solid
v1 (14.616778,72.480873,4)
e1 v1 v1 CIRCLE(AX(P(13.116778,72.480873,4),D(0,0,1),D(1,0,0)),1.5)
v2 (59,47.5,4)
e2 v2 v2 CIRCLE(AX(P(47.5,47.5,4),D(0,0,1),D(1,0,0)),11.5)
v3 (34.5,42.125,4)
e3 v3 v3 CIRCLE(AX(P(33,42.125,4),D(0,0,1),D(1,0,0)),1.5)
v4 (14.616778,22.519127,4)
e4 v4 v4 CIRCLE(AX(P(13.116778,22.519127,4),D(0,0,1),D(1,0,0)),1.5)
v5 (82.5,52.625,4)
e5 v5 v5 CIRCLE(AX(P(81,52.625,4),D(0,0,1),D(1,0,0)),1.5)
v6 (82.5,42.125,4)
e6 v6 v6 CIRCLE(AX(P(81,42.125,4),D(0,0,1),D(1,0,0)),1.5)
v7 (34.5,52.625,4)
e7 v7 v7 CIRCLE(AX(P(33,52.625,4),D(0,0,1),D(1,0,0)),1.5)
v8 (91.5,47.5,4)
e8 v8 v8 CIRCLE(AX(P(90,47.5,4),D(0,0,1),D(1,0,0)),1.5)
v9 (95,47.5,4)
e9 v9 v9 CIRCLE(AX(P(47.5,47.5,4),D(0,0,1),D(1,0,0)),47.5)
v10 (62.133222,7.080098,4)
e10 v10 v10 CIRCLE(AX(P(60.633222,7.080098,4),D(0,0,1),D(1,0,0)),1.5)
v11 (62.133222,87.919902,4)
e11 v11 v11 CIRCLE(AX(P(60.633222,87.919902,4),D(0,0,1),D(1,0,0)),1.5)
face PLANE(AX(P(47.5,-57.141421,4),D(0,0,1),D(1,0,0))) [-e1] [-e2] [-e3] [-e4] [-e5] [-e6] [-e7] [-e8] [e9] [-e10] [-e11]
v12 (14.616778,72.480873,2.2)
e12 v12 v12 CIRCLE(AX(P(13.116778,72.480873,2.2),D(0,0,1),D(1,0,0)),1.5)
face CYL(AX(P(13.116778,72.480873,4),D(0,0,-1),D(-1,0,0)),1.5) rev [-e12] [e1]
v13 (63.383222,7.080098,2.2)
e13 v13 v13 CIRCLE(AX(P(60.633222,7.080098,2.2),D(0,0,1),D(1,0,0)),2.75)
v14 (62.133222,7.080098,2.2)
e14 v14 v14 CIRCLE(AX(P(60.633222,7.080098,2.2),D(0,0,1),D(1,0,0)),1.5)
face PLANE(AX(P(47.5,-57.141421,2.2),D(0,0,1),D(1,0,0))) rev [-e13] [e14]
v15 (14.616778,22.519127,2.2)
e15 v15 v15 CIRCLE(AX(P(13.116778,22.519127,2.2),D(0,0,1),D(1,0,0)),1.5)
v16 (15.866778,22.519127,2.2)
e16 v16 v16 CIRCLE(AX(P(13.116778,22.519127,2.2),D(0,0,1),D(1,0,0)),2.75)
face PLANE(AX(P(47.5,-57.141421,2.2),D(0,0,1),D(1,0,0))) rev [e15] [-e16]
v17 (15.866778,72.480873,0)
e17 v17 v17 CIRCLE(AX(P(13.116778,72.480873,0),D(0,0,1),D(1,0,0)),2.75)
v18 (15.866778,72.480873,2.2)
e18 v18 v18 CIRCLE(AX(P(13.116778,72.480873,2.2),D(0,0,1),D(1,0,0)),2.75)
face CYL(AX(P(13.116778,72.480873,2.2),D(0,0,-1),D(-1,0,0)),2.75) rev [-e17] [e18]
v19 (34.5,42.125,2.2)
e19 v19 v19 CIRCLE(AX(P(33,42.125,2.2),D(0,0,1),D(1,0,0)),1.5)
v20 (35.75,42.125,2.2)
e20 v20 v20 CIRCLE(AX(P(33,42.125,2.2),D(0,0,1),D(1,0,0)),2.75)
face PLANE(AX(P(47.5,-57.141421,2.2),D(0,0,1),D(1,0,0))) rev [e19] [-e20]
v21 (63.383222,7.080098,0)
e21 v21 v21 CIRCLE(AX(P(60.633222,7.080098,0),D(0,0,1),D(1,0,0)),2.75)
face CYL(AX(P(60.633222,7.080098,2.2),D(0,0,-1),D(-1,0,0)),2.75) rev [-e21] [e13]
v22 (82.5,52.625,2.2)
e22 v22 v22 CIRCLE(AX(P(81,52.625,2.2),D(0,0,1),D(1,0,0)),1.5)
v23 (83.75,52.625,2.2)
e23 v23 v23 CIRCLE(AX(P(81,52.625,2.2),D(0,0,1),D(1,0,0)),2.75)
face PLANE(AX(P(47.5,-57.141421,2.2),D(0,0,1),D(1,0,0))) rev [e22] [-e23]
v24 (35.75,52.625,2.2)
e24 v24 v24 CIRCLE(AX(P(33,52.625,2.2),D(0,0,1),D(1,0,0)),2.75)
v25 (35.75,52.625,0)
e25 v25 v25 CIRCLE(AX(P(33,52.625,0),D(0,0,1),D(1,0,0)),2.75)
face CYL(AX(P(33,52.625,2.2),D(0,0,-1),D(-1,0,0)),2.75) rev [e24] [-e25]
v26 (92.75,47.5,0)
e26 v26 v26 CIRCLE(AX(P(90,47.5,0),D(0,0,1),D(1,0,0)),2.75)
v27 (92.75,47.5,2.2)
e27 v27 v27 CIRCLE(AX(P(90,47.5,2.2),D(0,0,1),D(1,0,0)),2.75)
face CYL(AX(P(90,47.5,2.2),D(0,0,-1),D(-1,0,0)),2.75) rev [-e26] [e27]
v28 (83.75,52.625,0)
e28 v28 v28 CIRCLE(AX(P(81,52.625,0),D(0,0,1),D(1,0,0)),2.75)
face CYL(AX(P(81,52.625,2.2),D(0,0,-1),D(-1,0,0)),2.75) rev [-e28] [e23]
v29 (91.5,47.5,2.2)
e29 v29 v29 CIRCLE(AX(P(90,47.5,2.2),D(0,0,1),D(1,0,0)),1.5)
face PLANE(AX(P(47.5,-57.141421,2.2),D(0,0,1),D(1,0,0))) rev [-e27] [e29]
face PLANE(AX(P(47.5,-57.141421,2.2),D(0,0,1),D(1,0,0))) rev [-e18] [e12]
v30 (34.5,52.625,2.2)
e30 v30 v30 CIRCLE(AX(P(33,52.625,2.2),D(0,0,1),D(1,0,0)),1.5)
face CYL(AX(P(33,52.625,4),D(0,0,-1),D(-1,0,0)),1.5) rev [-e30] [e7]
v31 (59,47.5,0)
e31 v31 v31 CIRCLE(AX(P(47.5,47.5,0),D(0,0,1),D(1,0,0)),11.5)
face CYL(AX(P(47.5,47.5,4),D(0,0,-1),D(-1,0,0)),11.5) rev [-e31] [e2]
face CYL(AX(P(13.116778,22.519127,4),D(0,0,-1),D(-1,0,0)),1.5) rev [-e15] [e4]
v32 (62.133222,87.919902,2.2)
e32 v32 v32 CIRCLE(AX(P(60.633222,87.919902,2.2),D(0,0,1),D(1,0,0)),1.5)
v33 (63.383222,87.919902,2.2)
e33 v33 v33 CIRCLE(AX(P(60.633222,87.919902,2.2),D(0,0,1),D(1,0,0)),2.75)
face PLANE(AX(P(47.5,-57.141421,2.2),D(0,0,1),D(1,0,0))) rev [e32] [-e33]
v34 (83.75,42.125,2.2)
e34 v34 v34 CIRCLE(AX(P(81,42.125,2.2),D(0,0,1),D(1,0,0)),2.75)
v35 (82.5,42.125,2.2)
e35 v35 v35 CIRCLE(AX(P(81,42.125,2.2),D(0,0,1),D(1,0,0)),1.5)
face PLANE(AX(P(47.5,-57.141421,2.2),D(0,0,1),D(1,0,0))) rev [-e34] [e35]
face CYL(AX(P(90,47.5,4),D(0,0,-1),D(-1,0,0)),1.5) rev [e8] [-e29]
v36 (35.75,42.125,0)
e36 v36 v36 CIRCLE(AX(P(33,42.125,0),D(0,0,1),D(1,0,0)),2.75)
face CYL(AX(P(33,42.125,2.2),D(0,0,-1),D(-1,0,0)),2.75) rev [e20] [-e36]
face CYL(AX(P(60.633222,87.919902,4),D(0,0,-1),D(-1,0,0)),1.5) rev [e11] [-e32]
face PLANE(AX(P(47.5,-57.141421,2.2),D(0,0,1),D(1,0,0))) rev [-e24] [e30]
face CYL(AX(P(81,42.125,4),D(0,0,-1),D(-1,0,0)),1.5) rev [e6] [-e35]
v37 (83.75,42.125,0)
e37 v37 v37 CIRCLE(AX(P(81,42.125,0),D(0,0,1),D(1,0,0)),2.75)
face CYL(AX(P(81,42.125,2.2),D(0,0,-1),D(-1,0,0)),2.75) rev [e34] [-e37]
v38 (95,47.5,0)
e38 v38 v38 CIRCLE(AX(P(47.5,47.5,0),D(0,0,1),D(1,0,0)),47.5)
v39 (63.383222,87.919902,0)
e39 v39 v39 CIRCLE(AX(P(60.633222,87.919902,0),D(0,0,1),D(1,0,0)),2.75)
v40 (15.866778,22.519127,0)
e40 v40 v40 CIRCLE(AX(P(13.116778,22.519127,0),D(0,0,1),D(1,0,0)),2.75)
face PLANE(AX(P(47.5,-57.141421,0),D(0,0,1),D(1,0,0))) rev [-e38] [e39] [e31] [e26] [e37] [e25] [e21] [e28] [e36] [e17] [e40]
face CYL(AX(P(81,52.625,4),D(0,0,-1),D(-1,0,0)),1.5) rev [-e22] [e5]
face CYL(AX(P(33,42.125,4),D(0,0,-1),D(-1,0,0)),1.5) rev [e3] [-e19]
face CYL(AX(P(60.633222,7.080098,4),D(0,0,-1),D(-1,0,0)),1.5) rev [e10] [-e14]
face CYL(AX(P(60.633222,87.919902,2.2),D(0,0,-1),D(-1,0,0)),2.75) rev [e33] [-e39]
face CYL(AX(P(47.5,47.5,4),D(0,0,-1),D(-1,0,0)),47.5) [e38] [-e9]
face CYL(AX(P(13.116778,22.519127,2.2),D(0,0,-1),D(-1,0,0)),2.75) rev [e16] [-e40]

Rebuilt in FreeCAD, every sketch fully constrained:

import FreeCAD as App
import Part
import Sketcher

doc = App.newDocument("Part")
params = doc.addObject("Spreadsheet::Sheet", "Params")
for row, (alias, value) in enumerate([
    ("sketch1_diameter", "95 mm"),
    ("sketch1_diameter2", "3 mm"),
    ("sketch1_diameter3", "23 mm"),
    ("pad1_length", "4 mm"),
    ("sketch2_diameter", "3 mm"),
    ("sketch2_diameter2", "5.5 mm"),
    ("pocket1_length", "2.2 mm"),
], start=1):
    params.set(f"A{row}", alias)
    params.set(f"B{row}", "=" + value)
    params.setAlias(f"B{row}", alias)

body = doc.addObject("PartDesign::Body", "Body")

# Sketch on XY plane
sketch1 = body.newObject("Sketcher::SketchObject", "Sketch")
sketch1.AttachmentSupport = (doc.getObject("XY_Plane"), [""])
sketch1.MapMode = "FlatFace"
sketch1.addGeometry([
    Part.Circle(App.Vector(47.5, 47.5, 0), App.Vector(0, 0, 1), 47.5),  # 0
    Part.Circle(App.Vector(13.1, 22.5, 0), App.Vector(0, 0, 1), 1.5),  # 1
    Part.Circle(App.Vector(33, 42.1, 0), App.Vector(0, 0, 1), 1.5),  # 2
    Part.Circle(App.Vector(60.6, 7.1, 0), App.Vector(0, 0, 1), 1.5),  # 3
    Part.Circle(App.Vector(81, 42.1, 0), App.Vector(0, 0, 1), 1.5),  # 4
    Part.Circle(App.Vector(33, 52.6, 0), App.Vector(0, 0, 1), 1.5),  # 5
    Part.Circle(App.Vector(47.5, 47.5, 0), App.Vector(0, 0, 1), 11.5),  # 6
    Part.Circle(App.Vector(13.1, 72.5, 0), App.Vector(0, 0, 1), 1.5),  # 7
    Part.Circle(App.Vector(81, 52.6, 0), App.Vector(0, 0, 1), 1.5),  # 8
    Part.Circle(App.Vector(90, 47.5, 0), App.Vector(0, 0, 1), 1.5),  # 9
    Part.Circle(App.Vector(60.6, 87.9, 0), App.Vector(0, 0, 1), 1.5),  # 10
], False)
sketch1.addConstraint([
    Sketcher.Constraint("Coincident", 6, 3, 0, 3),
    Sketcher.Constraint("Equal", 1, 2),
    Sketcher.Constraint("Equal", 2, 3),
    Sketcher.Constraint("Equal", 3, 4),
    Sketcher.Constraint("Equal", 4, 5),
    Sketcher.Constraint("Equal", 5, 7),
    Sketcher.Constraint("Equal", 7, 8),
    Sketcher.Constraint("Equal", 8, 9),
    Sketcher.Constraint("Equal", 9, 10),
    Sketcher.Constraint("Horizontal", 2, 3, 4, 3),
    Sketcher.Constraint("Horizontal", 5, 3, 8, 3),
    Sketcher.Constraint("Horizontal", 6, 3, 9, 3),
    Sketcher.Constraint("Vertical", 2, 3, 5, 3),
    Sketcher.Constraint("Vertical", 1, 3, 7, 3),
    Sketcher.Constraint("Vertical", 4, 3, 8, 3),
    Sketcher.Constraint("Vertical", 3, 3, 10, 3),
    Sketcher.Constraint("Diameter", 0, 95.0),
    Sketcher.Constraint("Diameter", 1, 3.0),
    Sketcher.Constraint("Diameter", 6, 23.0),
    Sketcher.Constraint("DistanceX", -1, 1, 2, 3, 33.0),
    Sketcher.Constraint("DistanceX", -1, 1, 4, 3, 81.0),
    Sketcher.Constraint("DistanceX", -1, 1, 9, 3, 90.0),
    Sketcher.Constraint("DistanceX", -1, 1, 0, 3, 47.5),
    Sketcher.Constraint("DistanceY", -1, 1, 0, 3, 47.5),
    Sketcher.Constraint("DistanceY", 2, 3, 5, 3, 10.5),
    Sketcher.Constraint("DistanceY", -1, 1, 2, 3, 42.125),
    Sketcher.Constraint("DistanceY", -1, 1, 3, 3, 7.080098),
    Sketcher.Constraint("DistanceY", -1, 1, 10, 3, 87.919902),
    Sketcher.Constraint("DistanceY", 3, 3, 1, 3, 15.439029),
    Sketcher.Constraint("DistanceX", -1, 1, 1, 3, 13.116778),
    Sketcher.Constraint("DistanceX", -1, 1, 3, 3, 60.633222),
    Sketcher.Constraint("DistanceY", -1, 1, 7, 3, 72.480873),
])
sketch1.setExpression("Constraints[16]", "Params.sketch1_diameter")
sketch1.setExpression("Constraints[17]", "Params.sketch1_diameter2")
sketch1.setExpression("Constraints[18]", "Params.sketch1_diameter3")
pad1 = body.newObject("PartDesign::Pad", "Pad")
pad1.Profile = sketch1
pad1.setExpression("Length", "Params.pad1_length")

# Sketch on XY plane
sketch2 = body.newObject("Sketcher::SketchObject", "Sketch001")
sketch2.AttachmentSupport = (doc.getObject("XY_Plane"), [""])
sketch2.MapMode = "FlatFace"
sketch2.addGeometry([
    Part.Circle(App.Vector(33, 52.6, 0), App.Vector(0, 0, 1), 2.8),  # 0
    Part.Circle(App.Vector(33, 52.6, 0), App.Vector(0, 0, 1), 1.5),  # 1
    Part.Circle(App.Vector(33, 42.1, 0), App.Vector(0, 0, 1), 2.8),  # 2
    Part.Circle(App.Vector(33, 42.1, 0), App.Vector(0, 0, 1), 1.5),  # 3
    Part.Circle(App.Vector(13.1, 22.5, 0), App.Vector(0, 0, 1), 2.8),  # 4
    Part.Circle(App.Vector(13.1, 22.5, 0), App.Vector(0, 0, 1), 1.5),  # 5
    Part.Circle(App.Vector(13.1, 72.5, 0), App.Vector(0, 0, 1), 2.8),  # 6
    Part.Circle(App.Vector(13.1, 72.5, 0), App.Vector(0, 0, 1), 1.5),  # 7
    Part.Circle(App.Vector(60.6, 87.9, 0), App.Vector(0, 0, 1), 2.8),  # 8
    Part.Circle(App.Vector(60.6, 87.9, 0), App.Vector(0, 0, 1), 1.5),  # 9
    Part.Circle(App.Vector(81, 52.6, 0), App.Vector(0, 0, 1), 2.8),  # 10
    Part.Circle(App.Vector(81, 52.6, 0), App.Vector(0, 0, 1), 1.5),  # 11
    Part.Circle(App.Vector(90, 47.5, 0), App.Vector(0, 0, 1), 2.8),  # 12
    Part.Circle(App.Vector(90, 47.5, 0), App.Vector(0, 0, 1), 1.5),  # 13
    Part.Circle(App.Vector(81, 42.1, 0), App.Vector(0, 0, 1), 2.8),  # 14
    Part.Circle(App.Vector(81, 42.1, 0), App.Vector(0, 0, 1), 1.5),  # 15
    Part.Circle(App.Vector(60.6, 7.1, 0), App.Vector(0, 0, 1), 2.8),  # 16
    Part.Circle(App.Vector(60.6, 7.1, 0), App.Vector(0, 0, 1), 1.5),  # 17
], False)
sketch2.addConstraint([
    Sketcher.Constraint("Coincident", 1, 3, 0, 3),
    Sketcher.Constraint("Coincident", 3, 3, 2, 3),
    Sketcher.Constraint("Coincident", 5, 3, 4, 3),
    Sketcher.Constraint("Coincident", 7, 3, 6, 3),
    Sketcher.Constraint("Coincident", 9, 3, 8, 3),
    Sketcher.Constraint("Coincident", 11, 3, 10, 3),
    Sketcher.Constraint("Coincident", 13, 3, 12, 3),
    Sketcher.Constraint("Coincident", 15, 3, 14, 3),
    Sketcher.Constraint("Coincident", 17, 3, 16, 3),
    Sketcher.Constraint("Equal", 0, 2),
    Sketcher.Constraint("Equal", 1, 3),
    Sketcher.Constraint("Equal", 2, 4),
    Sketcher.Constraint("Equal", 3, 5),
    Sketcher.Constraint("Equal", 4, 6),
    Sketcher.Constraint("Equal", 5, 7),
    Sketcher.Constraint("Equal", 6, 8),
    Sketcher.Constraint("Equal", 7, 9),
    Sketcher.Constraint("Equal", 8, 10),
    Sketcher.Constraint("Equal", 9, 11),
    Sketcher.Constraint("Equal", 10, 12),
    Sketcher.Constraint("Equal", 11, 13),
    Sketcher.Constraint("Equal", 12, 14),
    Sketcher.Constraint("Equal", 13, 15),
    Sketcher.Constraint("Equal", 14, 16),
    Sketcher.Constraint("Equal", 15, 17),
    Sketcher.Constraint("Horizontal", 1, 3, 10, 3),
    Sketcher.Constraint("Horizontal", 3, 3, 14, 3),
    Sketcher.Constraint("Vertical", 1, 3, 2, 3),
    Sketcher.Constraint("Vertical", 5, 3, 6, 3),
    Sketcher.Constraint("Vertical", 11, 3, 14, 3),
    Sketcher.Constraint("Vertical", 9, 3, 16, 3),
    Sketcher.Constraint("Diameter", 1, 3.0),
    Sketcher.Constraint("Diameter", 0, 5.5),
    Sketcher.Constraint("DistanceX", -1, 1, 0, 3, 33.0),
    Sketcher.Constraint("DistanceX", -1, 1, 10, 3, 81.0),
    Sketcher.Constraint("DistanceX", -1, 1, 12, 3, 90.0),
    Sketcher.Constraint("DistanceY", -1, 1, 12, 3, 47.5),
    Sketcher.Constraint("DistanceY", 2, 3, 0, 3, 10.5),
    Sketcher.Constraint("DistanceY", -1, 1, 0, 3, 52.625),
    Sketcher.Constraint("DistanceY", -1, 1, 8, 3, 87.919902),
    Sketcher.Constraint("DistanceY", -1, 1, 16, 3, 7.080098),
    Sketcher.Constraint("DistanceY", 6, 3, 8, 3, 15.439029),
    Sketcher.Constraint("DistanceX", -1, 1, 4, 3, 13.116778),
    Sketcher.Constraint("DistanceY", -1, 1, 4, 3, 22.519127),
    Sketcher.Constraint("DistanceX", -1, 1, 8, 3, 60.633222),
])
sketch2.setExpression("Constraints[31]", "Params.sketch2_diameter")
sketch2.setExpression("Constraints[32]", "Params.sketch2_diameter2")
pocket1 = body.newObject("PartDesign::Pocket", "Pocket")
pocket1.Profile = sketch2
pocket1.setExpression("Length", "Params.pocket1_length")
pocket1.Reversed = True

doc.recompute()
